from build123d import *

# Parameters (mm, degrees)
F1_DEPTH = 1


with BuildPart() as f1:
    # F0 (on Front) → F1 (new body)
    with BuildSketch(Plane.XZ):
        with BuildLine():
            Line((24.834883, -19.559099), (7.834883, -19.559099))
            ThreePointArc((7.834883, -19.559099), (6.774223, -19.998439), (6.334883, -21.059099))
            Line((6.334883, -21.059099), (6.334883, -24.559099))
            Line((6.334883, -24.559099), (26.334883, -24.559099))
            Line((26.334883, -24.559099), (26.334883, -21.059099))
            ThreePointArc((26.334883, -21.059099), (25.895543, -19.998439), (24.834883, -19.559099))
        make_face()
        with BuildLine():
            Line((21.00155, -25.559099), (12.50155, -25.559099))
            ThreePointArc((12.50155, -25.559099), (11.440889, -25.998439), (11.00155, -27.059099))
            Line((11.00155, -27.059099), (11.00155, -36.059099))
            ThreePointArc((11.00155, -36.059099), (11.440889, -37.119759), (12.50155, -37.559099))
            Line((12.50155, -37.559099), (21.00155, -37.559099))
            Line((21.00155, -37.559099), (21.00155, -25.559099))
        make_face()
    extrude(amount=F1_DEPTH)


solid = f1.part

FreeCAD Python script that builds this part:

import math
import FreeCAD as App
import Part
import Sketcher
from FreeCAD import Vector

doc = App.newDocument("Part")
body = doc.addObject("PartDesign::Body", "Body")
body.AllowCompound = True

# Sketch on XZ plane
sketch1 = body.newObject("Sketcher::SketchObject", "Sketch")
sketch1.AttachmentSupport = (doc.getObject("XZ_Plane"), [""])
sketch1.MapMode = "FlatFace"
sketch1.addGeometry(Part.LineSegment(Vector(24.8, -19.6, 0), Vector(7.8, -19.6, 0)), False)
sketch1.addGeometry(Part.ArcOfCircle(Part.Circle(Vector(7.8, -21.1, 0), Vector(0, 0, 1), 1.5), math.radians(90), math.radians(180)), False)
sketch1.addGeometry(Part.LineSegment(Vector(6.3, -21.1, 0), Vector(6.3, -24.6, 0)), False)
sketch1.addGeometry(Part.LineSegment(Vector(6.3, -24.6, 0), Vector(26.3, -24.6, 0)), False)
sketch1.addGeometry(Part.LineSegment(Vector(26.3, -24.6, 0), Vector(26.3, -21.1, 0)), False)
sketch1.addGeometry(Part.ArcOfCircle(Part.Circle(Vector(24.8, -21.1, 0), Vector(0, 0, 1), 1.5), math.radians(0), math.radians(90)), False)
sketch1.addGeometry(Part.LineSegment(Vector(21, -25.6, 0), Vector(12.5, -25.6, 0)), False)
sketch1.addGeometry(Part.ArcOfCircle(Part.Circle(Vector(12.5, -27.1, 0), Vector(0, 0, 1), 1.5), math.radians(90), math.radians(180)), False)
sketch1.addGeometry(Part.LineSegment(Vector(11, -27.1, 0), Vector(11, -36.1, 0)), False)
sketch1.addGeometry(Part.ArcOfCircle(Part.Circle(Vector(12.5, -36.1, 0), Vector(0, 0, 1), 1.5), math.radians(180), math.radians(270)), False)
sketch1.addGeometry(Part.LineSegment(Vector(12.5, -37.6, 0), Vector(21, -37.6, 0)), False)
sketch1.addGeometry(Part.LineSegment(Vector(21, -37.6, 0), Vector(21, -25.6, 0)), False)
sketch1.addConstraint(Sketcher.Constraint("Tangent", 0, 2, 1, 1))
sketch1.addConstraint(Sketcher.Constraint("Tangent", 1, 2, 2, 1))
sketch1.addConstraint(Sketcher.Constraint("Coincident", 2, 2, 3, 1))
sketch1.addConstraint(Sketcher.Constraint("Coincident", 3, 2, 4, 1))
sketch1.addConstraint(Sketcher.Constraint("Tangent", 4, 2, 5, 1))
sketch1.addConstraint(Sketcher.Constraint("Tangent", 5, 2, 0, 1))
sketch1.addConstraint(Sketcher.Constraint("Tangent", 6, 2, 7, 1))
sketch1.addConstraint(Sketcher.Constraint("Tangent", 7, 2, 8, 1))
sketch1.addConstraint(Sketcher.Constraint("Tangent", 8, 2, 9, 1))
sketch1.addConstraint(Sketcher.Constraint("Tangent", 9, 2, 10, 1))
sketch1.addConstraint(Sketcher.Constraint("Coincident", 10, 2, 11, 1))
sketch1.addConstraint(Sketcher.Constraint("Coincident", 11, 2, 6, 1))
sketch1.addConstraint(Sketcher.Constraint("Horizontal", 0))
sketch1.addConstraint(Sketcher.Constraint("Vertical", 2))
sketch1.addConstraint(Sketcher.Constraint("Horizontal", 3))
sketch1.addConstraint(Sketcher.Constraint("Vertical", 4))
sketch1.addConstraint(Sketcher.Constraint("Horizontal", 6))
sketch1.addConstraint(Sketcher.Constraint("Vertical", 8))
sketch1.addConstraint(Sketcher.Constraint("Horizontal", 10))
sketch1.addConstraint(Sketcher.Constraint("Vertical", 11))
sketch1.addConstraint(Sketcher.Constraint("Equal", 1, 5))
sketch1.addConstraint(Sketcher.Constraint("Equal", 5, 7))
sketch1.addConstraint(Sketcher.Constraint("Equal", 7, 9))
sketch1.addConstraint(Sketcher.Constraint("Radius", 1, 1.500001))
sketch1.addConstraint(Sketcher.Constraint("DistanceX", 0, 2, 0, 1, 17.0))
sketch1.addConstraint(Sketcher.Constraint("DistanceY", 8, 2, 8, 1, 9.0))
sketch1.addConstraint(Sketcher.Constraint("DistanceX", 6, 2, 6, 1, 8.5))
sketch1.addConstraint(Sketcher.Constraint("DistanceY", 2, 2, 2, 1, 3.5))
sketch1.addConstraint(Sketcher.Constraint("DistanceY", 7, 3, 1, 3, 5.999998))
sketch1.addConstraint(Sketcher.Constraint("DistanceY", 1, 3, -1, 1, 21.0591))
sketch1.addConstraint(Sketcher.Constraint("DistanceX", -1, 1, 7, 3, 12.501549))
sketch1.addConstraint(Sketcher.Constraint("DistanceX", -1, 1, 1, 3, 7.834884))
pad1 = body.newObject("PartDesign::Pad", "Pad")
pad1.Profile = sketch1
pad1.Length = 1

doc.recompute()
